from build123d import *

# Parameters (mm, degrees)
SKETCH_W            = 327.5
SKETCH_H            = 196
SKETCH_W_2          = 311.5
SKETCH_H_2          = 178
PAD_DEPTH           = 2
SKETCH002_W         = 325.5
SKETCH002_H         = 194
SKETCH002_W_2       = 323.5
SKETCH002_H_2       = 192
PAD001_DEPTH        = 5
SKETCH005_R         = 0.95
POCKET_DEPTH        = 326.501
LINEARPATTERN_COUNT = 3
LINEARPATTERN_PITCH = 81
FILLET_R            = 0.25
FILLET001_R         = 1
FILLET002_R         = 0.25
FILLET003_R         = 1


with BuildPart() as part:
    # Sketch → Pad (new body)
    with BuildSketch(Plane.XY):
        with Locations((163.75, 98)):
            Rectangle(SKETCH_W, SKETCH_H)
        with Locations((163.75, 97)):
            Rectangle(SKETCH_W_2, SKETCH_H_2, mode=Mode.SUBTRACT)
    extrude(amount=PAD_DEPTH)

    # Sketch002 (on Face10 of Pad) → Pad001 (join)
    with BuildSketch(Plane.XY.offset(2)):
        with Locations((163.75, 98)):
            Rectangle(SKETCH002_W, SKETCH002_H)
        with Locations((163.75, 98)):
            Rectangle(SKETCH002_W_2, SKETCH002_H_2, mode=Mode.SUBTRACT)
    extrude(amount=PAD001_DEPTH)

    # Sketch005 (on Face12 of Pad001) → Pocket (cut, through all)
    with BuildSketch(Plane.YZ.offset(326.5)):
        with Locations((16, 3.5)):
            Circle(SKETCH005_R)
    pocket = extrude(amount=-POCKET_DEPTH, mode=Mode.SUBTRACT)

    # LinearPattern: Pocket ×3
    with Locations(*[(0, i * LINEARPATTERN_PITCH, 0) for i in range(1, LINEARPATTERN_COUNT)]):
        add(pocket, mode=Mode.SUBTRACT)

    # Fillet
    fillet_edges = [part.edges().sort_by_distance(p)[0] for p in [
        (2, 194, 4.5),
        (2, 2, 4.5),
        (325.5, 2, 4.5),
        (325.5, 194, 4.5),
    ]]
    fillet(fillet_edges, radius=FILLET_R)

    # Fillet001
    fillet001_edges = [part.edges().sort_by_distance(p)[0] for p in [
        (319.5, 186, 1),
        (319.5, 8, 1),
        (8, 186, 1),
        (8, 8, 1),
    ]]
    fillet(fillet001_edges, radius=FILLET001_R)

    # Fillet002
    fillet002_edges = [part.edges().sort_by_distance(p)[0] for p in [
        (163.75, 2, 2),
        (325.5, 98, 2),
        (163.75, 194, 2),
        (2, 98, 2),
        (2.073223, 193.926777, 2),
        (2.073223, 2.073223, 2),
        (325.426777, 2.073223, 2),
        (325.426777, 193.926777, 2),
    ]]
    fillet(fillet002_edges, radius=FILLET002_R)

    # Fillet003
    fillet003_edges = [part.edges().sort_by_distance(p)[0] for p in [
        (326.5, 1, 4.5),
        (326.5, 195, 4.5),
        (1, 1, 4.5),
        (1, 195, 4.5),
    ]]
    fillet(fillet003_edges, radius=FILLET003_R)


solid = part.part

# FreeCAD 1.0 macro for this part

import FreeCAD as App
import Part
import Sketcher
Q = App.Units.Quantity


def edges_at(feature, points):
    """Names of the edges that pass closest to the given points."""
    edges = feature.Shape.Edges
    near = lambda p: min(range(len(edges)), key=lambda i: edges[i].distToShape(Part.Vertex(*p))[0])
    return sorted({f"Edge{near(p) + 1}" for p in points})


def add_polygon(sketch, points):
    """Adds a closed chain of lines whose ends are joined by coincident constraints."""
    first, n = sketch.GeometryCount, len(points)
    for a, b in zip(points, points[1:] + points[:1]):
        sketch.addGeometry(Part.LineSegment(App.Vector(*a, 0), App.Vector(*b, 0)), False)
    for i in range(n):
        sketch.addConstraint(Sketcher.Constraint("Coincident", first + i, 2, first + (i + 1) % n, 1))

doc = App.newDocument("Part")
body = doc.addObject("PartDesign::Body", "Body")

# Sketch on XY plane
sketch1 = doc.addObject("Sketcher::SketchObject", "Sketch")
body.addObject(sketch1)
sketch1.AttachmentSupport = (doc.XY_Plane, [""])
sketch1.MapMode = "FlatFace"
add_polygon(sketch1, [(0, 196), (0, 0), (327.5, 0), (327.5, 196)])  # lines 0-3
add_polygon(sketch1, [(319.5, 8), (8, 8), (8, 186), (319.5, 186)])  # lines 4-7
sketch1.addConstraint(Sketcher.Constraint("Vertical", 0))
sketch1.addConstraint(Sketcher.Constraint("Horizontal", 1))
sketch1.addConstraint(Sketcher.Constraint("Vertical", 2))
sketch1.addConstraint(Sketcher.Constraint("Horizontal", 3))
sketch1.addConstraint(Sketcher.Constraint("Horizontal", 4))
sketch1.addConstraint(Sketcher.Constraint("Vertical", 5))
sketch1.addConstraint(Sketcher.Constraint("Horizontal", 6))
sketch1.addConstraint(Sketcher.Constraint("Vertical", 7))
sketch1.addConstraint(Sketcher.Constraint("Coincident", 0, 2, -1, 1))
sketch1.addConstraint(Sketcher.Constraint("DistanceY", 0, 2, 0, 1, Q("196 mm")))
sketch1.addConstraint(Sketcher.Constraint("DistanceY", 5, 1, 5, 2, Q("178 mm")))
sketch1.addConstraint(Sketcher.Constraint("DistanceX", 1, 1, 1, 2, Q("327.5 mm")))
sketch1.addConstraint(Sketcher.Constraint("DistanceX", 4, 2, 4, 1, Q("311.5 mm")))
sketch1.addConstraint(Sketcher.Constraint("DistanceX", -1, 1, 4, 2, Q("8 mm")))
sketch1.addConstraint(Sketcher.Constraint("DistanceY", -1, 1, 4, 2, Q("8 mm")))
pad1 = doc.addObject("PartDesign::Pad", "Pad")
body.addObject(pad1)
pad1.Profile = sketch1
pad1.Length = 2

# Sketch on XY plane
sketch2 = doc.addObject("Sketcher::SketchObject", "Sketch001")
body.addObject(sketch2)
sketch2.AttachmentSupport = (doc.XY_Plane, [""])
sketch2.MapMode = "FlatFace"
sketch2.AttachmentOffset = App.Placement(App.Vector(0, 0, 2), App.Rotation())
add_polygon(sketch2, [(1, 195), (1, 1), (326.5, 1), (326.5, 195)])  # lines 0-3
add_polygon(sketch2, [(325.5, 2), (2, 2), (2, 194), (325.5, 194)])  # lines 4-7
sketch2.addConstraint(Sketcher.Constraint("Vertical", 0))
sketch2.addConstraint(Sketcher.Constraint("Horizontal", 1))
sketch2.addConstraint(Sketcher.Constraint("Vertical", 2))
sketch2.addConstraint(Sketcher.Constraint("Horizontal", 3))
sketch2.addConstraint(Sketcher.Constraint("Horizontal", 4))
sketch2.addConstraint(Sketcher.Constraint("Vertical", 5))
sketch2.addConstraint(Sketcher.Constraint("Horizontal", 6))
sketch2.addConstraint(Sketcher.Constraint("Vertical", 7))
sketch2.addConstraint(Sketcher.Constraint("DistanceY", 0, 2, 0, 1, Q("194 mm")))
sketch2.addConstraint(Sketcher.Constraint("DistanceY", 5, 1, 5, 2, Q("192 mm")))
sketch2.addConstraint(Sketcher.Constraint("DistanceX", 1, 1, 1, 2, Q("325.5 mm")))
sketch2.addConstraint(Sketcher.Constraint("DistanceX", 4, 2, 4, 1, Q("323.5 mm")))
sketch2.addConstraint(Sketcher.Constraint("DistanceX", -1, 1, 0, 2, Q("1 mm")))
sketch2.addConstraint(Sketcher.Constraint("DistanceY", -1, 1, 0, 2, Q("1 mm")))
sketch2.addConstraint(Sketcher.Constraint("DistanceX", -1, 1, 4, 2, Q("2 mm")))
sketch2.addConstraint(Sketcher.Constraint("DistanceY", -1, 1, 4, 2, Q("2 mm")))
pad2 = doc.addObject("PartDesign::Pad", "Pad001")
body.addObject(pad2)
pad2.Profile = sketch2
pad2.Length = 5

# Sketch on YZ plane
sketch3 = doc.addObject("Sketcher::SketchObject", "Sketch002")
body.addObject(sketch3)
sketch3.AttachmentSupport = (doc.YZ_Plane, [""])
sketch3.MapMode = "FlatFace"
sketch3.AttachmentOffset = App.Placement(App.Vector(0, 0, 326.5), App.Rotation())
sketch3.addGeometry(Part.Circle(App.Vector(16, 3.5, 0), App.Vector(0, 0, 1), 0.95), False)
sketch3.addConstraint(Sketcher.Constraint("Diameter", 0, Q("1.9 mm")))
sketch3.addConstraint(Sketcher.Constraint("DistanceX", -1, 1, 0, 3, Q("16 mm")))
sketch3.addConstraint(Sketcher.Constraint("DistanceY", -1, 1, 0, 3, Q("3.5 mm")))
pocket1 = doc.addObject("PartDesign::Pocket", "Pocket")
body.addObject(pocket1)
pocket1.Profile = sketch3
pocket1.Type = "ThroughAll"
doc.recompute()

linearpattern = doc.addObject("PartDesign::LinearPattern", "LinearPattern")
body.addObject(linearpattern)
linearpattern.Originals = [pocket1]
linearpattern.Direction = (doc.Y_Axis, [""])
linearpattern.Mode = "offset"
linearpattern.Offset = 81
linearpattern.Occurrences = 3
body.Tip = linearpattern
doc.recompute()

fillet = doc.addObject("PartDesign::Fillet", "Fillet")
body.addObject(fillet)
fillet.Base = (linearpattern, edges_at(linearpattern, [
    (2, 194, 4.5),
    (2, 2, 4.5),
    (325.5, 2, 4.5),
    (325.5, 194, 4.5),
]))
fillet.Radius = 0.25
doc.recompute()

fillet2 = doc.addObject("PartDesign::Fillet", "Fillet001")
body.addObject(fillet2)
fillet2.Base = (fillet, edges_at(fillet, [
    (319.5, 186, 1),
    (319.5, 8, 1),
    (8, 186, 1),
    (8, 8, 1),
]))
fillet2.Radius = 1
doc.recompute()

fillet3 = doc.addObject("PartDesign::Fillet", "Fillet002")
body.addObject(fillet3)
fillet3.Base = (fillet2, edges_at(fillet2, [
    (163.75, 2, 2),
    (325.5, 98, 2),
    (163.75, 194, 2),
    (2, 98, 2),
    (2.073, 193.927, 2),
    (2.073, 2.073, 2),
    (325.427, 2.073, 2),
    (325.427, 193.927, 2),
]))
fillet3.Radius = 0.25
doc.recompute()

fillet4 = doc.addObject("PartDesign::Fillet", "Fillet003")
body.addObject(fillet4)
fillet4.Base = (fillet3, edges_at(fillet3, [
    (326.5, 1, 4.5),
    (326.5, 195, 4.5),
    (1, 1, 4.5),
    (1, 195, 4.5),
]))
fillet4.Radius = 1

doc.recompute()
